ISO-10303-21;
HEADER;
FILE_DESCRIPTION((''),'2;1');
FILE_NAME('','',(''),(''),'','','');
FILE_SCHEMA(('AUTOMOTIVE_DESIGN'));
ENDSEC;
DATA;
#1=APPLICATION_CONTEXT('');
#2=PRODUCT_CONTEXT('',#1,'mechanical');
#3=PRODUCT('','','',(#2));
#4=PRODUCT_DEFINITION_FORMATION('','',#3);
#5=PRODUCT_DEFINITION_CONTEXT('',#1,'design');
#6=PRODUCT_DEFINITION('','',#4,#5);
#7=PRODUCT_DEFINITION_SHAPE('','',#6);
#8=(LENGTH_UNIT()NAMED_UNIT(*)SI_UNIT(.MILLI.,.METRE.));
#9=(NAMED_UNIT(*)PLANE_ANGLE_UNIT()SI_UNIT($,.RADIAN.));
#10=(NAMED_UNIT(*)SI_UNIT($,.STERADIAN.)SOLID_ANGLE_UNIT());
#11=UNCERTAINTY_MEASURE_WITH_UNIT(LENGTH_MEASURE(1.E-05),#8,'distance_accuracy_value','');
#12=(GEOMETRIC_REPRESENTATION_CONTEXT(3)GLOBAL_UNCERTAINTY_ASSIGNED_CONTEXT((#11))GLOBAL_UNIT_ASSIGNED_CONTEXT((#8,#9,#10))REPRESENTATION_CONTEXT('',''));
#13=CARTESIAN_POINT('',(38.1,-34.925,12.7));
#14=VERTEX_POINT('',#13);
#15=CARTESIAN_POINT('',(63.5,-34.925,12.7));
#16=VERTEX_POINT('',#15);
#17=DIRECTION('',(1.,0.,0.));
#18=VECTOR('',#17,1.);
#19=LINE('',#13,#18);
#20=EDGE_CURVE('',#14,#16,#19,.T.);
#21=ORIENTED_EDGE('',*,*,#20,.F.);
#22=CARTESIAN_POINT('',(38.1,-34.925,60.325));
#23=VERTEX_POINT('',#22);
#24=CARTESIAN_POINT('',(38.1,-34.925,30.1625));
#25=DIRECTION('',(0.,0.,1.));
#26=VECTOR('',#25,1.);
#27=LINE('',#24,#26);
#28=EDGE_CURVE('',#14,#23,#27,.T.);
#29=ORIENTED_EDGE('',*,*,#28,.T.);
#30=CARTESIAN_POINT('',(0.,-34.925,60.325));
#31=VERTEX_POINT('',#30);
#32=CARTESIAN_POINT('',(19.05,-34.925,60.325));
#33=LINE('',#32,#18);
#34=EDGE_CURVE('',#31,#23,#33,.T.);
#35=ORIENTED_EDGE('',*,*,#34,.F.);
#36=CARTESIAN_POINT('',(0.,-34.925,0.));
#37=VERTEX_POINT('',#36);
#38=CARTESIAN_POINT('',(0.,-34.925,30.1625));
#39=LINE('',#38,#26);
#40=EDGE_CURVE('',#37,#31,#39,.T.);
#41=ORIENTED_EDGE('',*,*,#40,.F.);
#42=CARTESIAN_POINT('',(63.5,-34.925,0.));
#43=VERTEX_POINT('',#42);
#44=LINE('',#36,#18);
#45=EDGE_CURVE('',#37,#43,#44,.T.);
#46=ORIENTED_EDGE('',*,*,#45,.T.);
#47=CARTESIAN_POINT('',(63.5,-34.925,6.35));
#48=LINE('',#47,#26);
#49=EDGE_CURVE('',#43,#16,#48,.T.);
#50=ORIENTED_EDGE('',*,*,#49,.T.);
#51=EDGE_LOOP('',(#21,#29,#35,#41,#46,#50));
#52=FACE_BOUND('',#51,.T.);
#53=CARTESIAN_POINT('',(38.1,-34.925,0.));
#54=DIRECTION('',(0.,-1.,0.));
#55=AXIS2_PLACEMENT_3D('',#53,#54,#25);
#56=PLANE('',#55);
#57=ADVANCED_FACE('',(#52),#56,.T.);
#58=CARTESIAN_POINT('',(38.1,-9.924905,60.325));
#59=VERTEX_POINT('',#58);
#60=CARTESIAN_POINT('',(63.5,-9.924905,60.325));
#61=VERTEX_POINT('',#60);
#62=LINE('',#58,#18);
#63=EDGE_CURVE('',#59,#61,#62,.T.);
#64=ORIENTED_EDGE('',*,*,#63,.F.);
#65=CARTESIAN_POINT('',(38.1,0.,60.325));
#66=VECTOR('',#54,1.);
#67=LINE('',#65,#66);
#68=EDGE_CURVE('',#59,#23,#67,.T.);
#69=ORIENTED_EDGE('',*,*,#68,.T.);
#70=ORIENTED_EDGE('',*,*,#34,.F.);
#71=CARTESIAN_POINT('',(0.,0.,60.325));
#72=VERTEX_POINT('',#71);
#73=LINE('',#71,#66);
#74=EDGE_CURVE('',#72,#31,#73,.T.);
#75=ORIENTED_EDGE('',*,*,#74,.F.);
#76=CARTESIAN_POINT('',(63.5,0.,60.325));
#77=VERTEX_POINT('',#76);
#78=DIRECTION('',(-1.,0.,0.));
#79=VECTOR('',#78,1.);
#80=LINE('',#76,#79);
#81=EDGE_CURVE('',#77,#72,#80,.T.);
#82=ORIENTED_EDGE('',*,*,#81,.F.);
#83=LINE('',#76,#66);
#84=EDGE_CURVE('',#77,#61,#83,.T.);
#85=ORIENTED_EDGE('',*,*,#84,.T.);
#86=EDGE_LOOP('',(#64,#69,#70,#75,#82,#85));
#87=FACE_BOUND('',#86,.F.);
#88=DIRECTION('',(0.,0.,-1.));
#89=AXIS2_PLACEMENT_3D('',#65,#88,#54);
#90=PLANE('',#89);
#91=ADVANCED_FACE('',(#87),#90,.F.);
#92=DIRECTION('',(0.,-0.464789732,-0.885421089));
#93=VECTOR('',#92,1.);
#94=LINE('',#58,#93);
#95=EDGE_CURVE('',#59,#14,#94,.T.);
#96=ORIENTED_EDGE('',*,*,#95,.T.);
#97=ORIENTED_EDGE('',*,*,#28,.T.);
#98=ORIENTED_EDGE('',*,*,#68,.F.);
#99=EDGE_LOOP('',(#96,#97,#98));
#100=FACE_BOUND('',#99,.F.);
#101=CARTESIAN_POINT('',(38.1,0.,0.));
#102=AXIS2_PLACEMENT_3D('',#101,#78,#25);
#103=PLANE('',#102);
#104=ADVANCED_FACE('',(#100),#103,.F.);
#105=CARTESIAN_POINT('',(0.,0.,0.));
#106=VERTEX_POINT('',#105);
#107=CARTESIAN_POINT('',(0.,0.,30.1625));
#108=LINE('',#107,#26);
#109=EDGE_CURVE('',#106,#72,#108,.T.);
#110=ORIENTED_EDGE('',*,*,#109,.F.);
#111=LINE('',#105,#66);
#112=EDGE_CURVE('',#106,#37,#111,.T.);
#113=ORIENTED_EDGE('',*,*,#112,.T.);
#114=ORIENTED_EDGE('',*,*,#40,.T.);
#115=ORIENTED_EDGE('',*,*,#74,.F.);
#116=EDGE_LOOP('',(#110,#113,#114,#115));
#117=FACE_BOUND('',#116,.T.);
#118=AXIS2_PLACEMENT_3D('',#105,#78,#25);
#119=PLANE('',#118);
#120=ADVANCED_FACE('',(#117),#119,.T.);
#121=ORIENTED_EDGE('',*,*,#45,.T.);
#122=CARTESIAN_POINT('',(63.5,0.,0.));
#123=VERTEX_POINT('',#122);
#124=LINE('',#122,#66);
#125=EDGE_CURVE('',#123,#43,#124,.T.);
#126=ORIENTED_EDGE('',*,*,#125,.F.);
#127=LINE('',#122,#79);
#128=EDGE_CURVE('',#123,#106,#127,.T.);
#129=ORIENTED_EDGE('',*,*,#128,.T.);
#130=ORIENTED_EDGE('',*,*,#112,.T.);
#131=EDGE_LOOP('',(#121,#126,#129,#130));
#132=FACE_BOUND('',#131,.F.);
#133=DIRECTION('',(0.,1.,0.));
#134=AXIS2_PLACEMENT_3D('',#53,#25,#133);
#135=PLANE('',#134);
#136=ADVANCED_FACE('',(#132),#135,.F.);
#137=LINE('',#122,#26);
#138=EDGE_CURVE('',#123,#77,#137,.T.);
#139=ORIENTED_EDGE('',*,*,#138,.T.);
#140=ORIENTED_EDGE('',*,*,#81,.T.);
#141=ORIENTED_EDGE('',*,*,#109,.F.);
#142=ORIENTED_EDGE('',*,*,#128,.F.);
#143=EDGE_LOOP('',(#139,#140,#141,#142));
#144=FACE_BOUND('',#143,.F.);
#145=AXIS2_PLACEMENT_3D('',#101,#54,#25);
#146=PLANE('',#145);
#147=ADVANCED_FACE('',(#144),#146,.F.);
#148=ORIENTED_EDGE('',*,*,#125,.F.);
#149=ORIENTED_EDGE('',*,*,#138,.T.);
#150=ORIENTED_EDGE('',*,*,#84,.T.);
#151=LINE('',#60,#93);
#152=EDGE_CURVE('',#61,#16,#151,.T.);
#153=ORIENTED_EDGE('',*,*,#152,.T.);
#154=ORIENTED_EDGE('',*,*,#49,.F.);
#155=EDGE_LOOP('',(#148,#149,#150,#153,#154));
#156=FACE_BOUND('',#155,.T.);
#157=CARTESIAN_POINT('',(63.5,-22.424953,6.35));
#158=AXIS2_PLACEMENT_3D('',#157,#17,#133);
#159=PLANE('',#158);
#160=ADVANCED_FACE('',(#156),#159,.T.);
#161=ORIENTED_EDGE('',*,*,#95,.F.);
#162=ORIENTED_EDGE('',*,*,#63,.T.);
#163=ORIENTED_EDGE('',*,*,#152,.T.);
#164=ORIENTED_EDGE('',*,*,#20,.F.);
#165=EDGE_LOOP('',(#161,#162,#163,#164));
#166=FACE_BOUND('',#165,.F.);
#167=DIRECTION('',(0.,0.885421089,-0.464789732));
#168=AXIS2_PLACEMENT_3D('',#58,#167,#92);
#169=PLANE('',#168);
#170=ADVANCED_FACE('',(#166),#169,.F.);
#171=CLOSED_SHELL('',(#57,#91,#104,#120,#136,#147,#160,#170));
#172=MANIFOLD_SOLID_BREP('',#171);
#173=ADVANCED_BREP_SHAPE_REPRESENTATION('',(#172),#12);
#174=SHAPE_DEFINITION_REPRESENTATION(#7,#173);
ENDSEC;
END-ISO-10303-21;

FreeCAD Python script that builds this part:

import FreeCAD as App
import Part
import Sketcher
from FreeCAD import Vector
Q = App.Units.Quantity


def add_polygon(sketch, points):
    """Adds a closed chain of lines whose ends are joined by coincident constraints."""
    first, n = sketch.GeometryCount, len(points)
    for a, b in zip(points, points[1:] + points[:1]):
        sketch.addGeometry(Part.LineSegment(App.Vector(*a, 0), App.Vector(*b, 0)), False)
    for i in range(n):
        sketch.addConstraint(Sketcher.Constraint("Coincident", first + i, 2, first + (i + 1) % n, 1))

doc = App.newDocument("Part")
body = doc.addObject("PartDesign::Body", "Body")

sketch1 = doc.addObject("Sketcher::SketchObject", "Sketch")
body.addObject(sketch1)
sketch1.AttachmentSupport = (doc.XZ_Plane, [""])
sketch1.MapMode = "FlatFace"
add_polygon(sketch1, [(0, 60), (0, 0), (38, 0), (38, 60)])
sketch1.addConstraint([
    Sketcher.Constraint("Vertical", 0),
    Sketcher.Constraint("Horizontal", 1),
    Sketcher.Constraint("Vertical", 2),
    Sketcher.Constraint("Horizontal", 3),
    Sketcher.Constraint("Coincident", 0, 2, -1, 1),
    Sketcher.Constraint("DistanceX", 1, 1, 1, 2, Q("1.5 in")),
    Sketcher.Constraint("DistanceY", 0, 2, 0, 1, Q("2.375 in")),
])
pad1 = doc.addObject("PartDesign::Pad", "Pad")
body.addObject(pad1)
pad1.Profile = sketch1
pad1.Length = Q("1.375 in")

sketch2 = doc.addObject("Sketcher::SketchObject", "Sketch001")
body.addObject(sketch2)
sketch2.AttachmentSupport = (doc.YZ_Plane, [""])
sketch2.MapMode = "FlatFace"
sketch2.AttachmentOffset = App.Placement(Vector(0, 0, 1.5 * 25.4), App.Rotation())
add_polygon(sketch2, [(-10, 60), (-35, 13), (-10, 13)])
sketch2.addConstraint([
    Sketcher.Constraint("Horizontal", 1),
    Sketcher.Constraint("Vertical", 2),
    Sketcher.Constraint("DistanceY", -1, 1, 0, 2, Q("0.5 in")),
    Sketcher.Constraint("DistanceY", 2, 1, 2, 2, Q("1.875 in")),
    Sketcher.Constraint("DistanceX", 0, 2, -1, 1, Q("1.375 in")),
    Sketcher.Constraint("DistanceX", 1, 1, 1, 2, 25.000095),
])
pad2 = doc.addObject("PartDesign::Pad", "Pad001")
body.addObject(pad2)
pad2.Profile = sketch2
pad2.Length = Q("1 in")

sketch3 = doc.addObject("Sketcher::SketchObject", "Sketch002")
body.addObject(sketch3)
sketch3.AttachmentSupport = (doc.YZ_Plane, [""])
sketch3.MapMode = "FlatFace"
sketch3.AttachmentOffset = App.Placement(Vector(0, 0, 1.5 * 25.4), App.Rotation())
add_polygon(sketch3, [(0, 60), (-10, 60), (-10, 0), (0, 0)])
sketch3.addConstraint([
    Sketcher.Constraint("Horizontal", 0),
    Sketcher.Constraint("Vertical", 1),
    Sketcher.Constraint("Horizontal", 2),
    Sketcher.Constraint("Vertical", 3),
    Sketcher.Constraint("Coincident", 2, 2, -1, 1),
    Sketcher.Constraint("DistanceY", 1, 2, 1, 1, Q("2.375 in")),
    Sketcher.Constraint("DistanceX", 0, 2, 0, 1, 9.924905),
])
pad3 = doc.addObject("PartDesign::Pad", "Pad002")
body.addObject(pad3)
pad3.Profile = sketch3
pad3.Length = Q("1 in")

sketch4 = doc.addObject("Sketcher::SketchObject", "Sketch003")
body.addObject(sketch4)
sketch4.AttachmentSupport = (doc.YZ_Plane, [""])
sketch4.MapMode = "FlatFace"
sketch4.AttachmentOffset = App.Placement(Vector(0, 0, 1.5 * 25.4), App.Rotation())
add_polygon(sketch4, [(-35, 13), (-35, 0), (-10, 0), (-10, 13)])
sketch4.addConstraint([
    Sketcher.Constraint("Vertical", 0),
    Sketcher.Constraint("Horizontal", 1),
    Sketcher.Constraint("Vertical", 2),
    Sketcher.Constraint("Horizontal", 3),
    Sketcher.Constraint("PointOnObject", 0, 2, -1),
    Sketcher.Constraint("DistanceY", 0, 2, 0, 1, Q("0.5 in")),
    Sketcher.Constraint("DistanceX", 0, 2, -1, 1, Q("1.375 in")),
    Sketcher.Constraint("DistanceX", 1, 1, 1, 2, 25.000095),
])
pad4 = doc.addObject("PartDesign::Pad", "Pad003")
body.addObject(pad4)
pad4.Profile = sketch4
pad4.Length = Q("1 in")

doc.recompute()
